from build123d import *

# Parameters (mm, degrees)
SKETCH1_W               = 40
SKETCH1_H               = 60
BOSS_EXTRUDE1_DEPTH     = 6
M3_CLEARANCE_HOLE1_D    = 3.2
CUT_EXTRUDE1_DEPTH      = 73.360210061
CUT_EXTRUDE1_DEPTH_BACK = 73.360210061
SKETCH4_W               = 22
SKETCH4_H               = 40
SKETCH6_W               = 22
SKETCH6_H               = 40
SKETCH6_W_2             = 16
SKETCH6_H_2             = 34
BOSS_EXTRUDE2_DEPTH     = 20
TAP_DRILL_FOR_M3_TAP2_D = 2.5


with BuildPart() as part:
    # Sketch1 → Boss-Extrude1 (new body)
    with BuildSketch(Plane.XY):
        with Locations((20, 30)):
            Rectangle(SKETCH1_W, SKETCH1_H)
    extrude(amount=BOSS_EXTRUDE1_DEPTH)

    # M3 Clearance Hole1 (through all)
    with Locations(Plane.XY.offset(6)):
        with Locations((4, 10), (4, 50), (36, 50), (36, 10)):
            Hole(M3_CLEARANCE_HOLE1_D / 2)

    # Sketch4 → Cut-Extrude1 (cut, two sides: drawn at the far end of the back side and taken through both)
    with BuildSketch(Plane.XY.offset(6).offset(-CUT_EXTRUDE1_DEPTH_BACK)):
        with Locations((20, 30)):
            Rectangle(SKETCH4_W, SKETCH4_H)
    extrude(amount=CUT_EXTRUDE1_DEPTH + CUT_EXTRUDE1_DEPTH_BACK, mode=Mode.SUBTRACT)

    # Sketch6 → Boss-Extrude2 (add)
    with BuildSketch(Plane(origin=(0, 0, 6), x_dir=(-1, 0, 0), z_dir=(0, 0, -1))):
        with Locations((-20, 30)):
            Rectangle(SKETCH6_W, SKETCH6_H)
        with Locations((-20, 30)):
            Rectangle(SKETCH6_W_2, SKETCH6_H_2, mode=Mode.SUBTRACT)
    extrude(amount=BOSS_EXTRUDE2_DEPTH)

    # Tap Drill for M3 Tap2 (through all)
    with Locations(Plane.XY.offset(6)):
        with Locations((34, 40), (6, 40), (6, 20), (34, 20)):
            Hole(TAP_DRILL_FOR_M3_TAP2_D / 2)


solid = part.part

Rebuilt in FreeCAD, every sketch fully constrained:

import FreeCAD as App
import Part
import Sketcher

V = App.Vector
Q = App.Units.Quantity


def add_polygon(sketch, points):
    """Adds a closed chain of lines whose ends are joined by coincident constraints."""
    first, n = sketch.GeometryCount, len(points)
    for a, b in zip(points, points[1:] + points[:1]):
        sketch.addGeometry(Part.LineSegment(App.Vector(*a, 0), App.Vector(*b, 0)), False)
    for i in range(n):
        sketch.addConstraint(Sketcher.Constraint("Coincident", first + i, 2, first + (i + 1) % n, 1))

doc = App.newDocument("Part")
body = doc.addObject("PartDesign::Body", "Body")

# Sketch on XY plane
sketch1 = body.newObject("Sketcher::SketchObject", "Sketch")
sketch1.AttachmentSupport = (doc.getObject("XY_Plane"), [""])
sketch1.MapMode = "FlatFace"
add_polygon(sketch1, [(0, 60), (0, 0), (40, 0), (40, 60)])  # lines 0-3
sketch1.addConstraint([
    Sketcher.Constraint("Vertical", 0),
    Sketcher.Constraint("Horizontal", 1),
    Sketcher.Constraint("Vertical", 2),
    Sketcher.Constraint("Horizontal", 3),
    Sketcher.Constraint("Coincident", 0, 2, -1, 1),
    Sketcher.Constraint("DistanceX", 1, 1, 1, 2, Q("40 mm")),
    Sketcher.Constraint("DistanceY", 0, 2, 0, 1, Q("60 mm")),
])
pad1 = body.newObject("PartDesign::Pad", "Pad")
pad1.Profile = sketch1
pad1.Length = 6

# Sketch on XY plane
sketch2 = body.newObject("Sketcher::SketchObject", "Sketch001")
sketch2.AttachmentSupport = (doc.getObject("XY_Plane"), [""])
sketch2.MapMode = "FlatFace"
sketch2.AttachmentOffset = App.Placement(V(0, 0, 6), App.Rotation())
sketch2.addGeometry([
    Part.Circle(V(4, 10, 0), V(0, 0, 1), 1.6),
    Part.Circle(V(4, 50, 0), V(0, 0, 1), 1.6),
    Part.Circle(V(36, 50, 0), V(0, 0, 1), 1.6),
    Part.Circle(V(36, 10, 0), V(0, 0, 1), 1.6),
], False)
sketch2.addConstraint([
    Sketcher.Constraint("Equal", 0, 1),
    Sketcher.Constraint("Equal", 1, 2),
    Sketcher.Constraint("Equal", 2, 3),
    Sketcher.Constraint("Horizontal", 1, 3, 2, 3),
    Sketcher.Constraint("Horizontal", 0, 3, 3, 3),
    Sketcher.Constraint("Vertical", 0, 3, 1, 3),
    Sketcher.Constraint("Vertical", 2, 3, 3, 3),
    Sketcher.Constraint("Diameter", 0, Q("3.2 mm")),
    Sketcher.Constraint("DistanceX", -1, 1, 0, 3, Q("4 mm")),
    Sketcher.Constraint("DistanceY", -1, 1, 0, 3, Q("10 mm")),
    Sketcher.Constraint("DistanceY", -1, 1, 1, 3, Q("50 mm")),
    Sketcher.Constraint("DistanceX", -1, 1, 2, 3, Q("36 mm")),
])
doc.recompute()
hole = body.newObject("PartDesign::Hole", "Hole")
hole.Profile = sketch2
hole.ThreadType = "None"
hole.Diameter = 3.2
hole.DepthType = "ThroughAll"

# Sketch on XY plane
sketch3 = body.newObject("Sketcher::SketchObject", "Sketch002")
sketch3.AttachmentSupport = (doc.getObject("XY_Plane"), [""])
sketch3.MapMode = "FlatFace"
sketch3.AttachmentOffset = App.Placement(V(0, 0, 6), App.Rotation())
add_polygon(sketch3, [(9, 50), (9, 10), (31, 10), (31, 50)])  # lines 0-3
sketch3.addConstraint([
    Sketcher.Constraint("Vertical", 0),
    Sketcher.Constraint("Horizontal", 1),
    Sketcher.Constraint("Vertical", 2),
    Sketcher.Constraint("Horizontal", 3),
    Sketcher.Constraint("DistanceX", 1, 1, 1, 2, Q("22 mm")),
    Sketcher.Constraint("DistanceY", 0, 2, 0, 1, Q("40 mm")),
    Sketcher.Constraint("DistanceX", -1, 1, 0, 2, Q("9 mm")),
    Sketcher.Constraint("DistanceY", -1, 1, 0, 2, Q("10 mm")),
])
pocket1 = body.newObject("PartDesign::Pocket", "Pocket")
pocket1.Profile = sketch3
pocket1.Type = "ThroughAll"
pocket1.Midplane = True

# Sketch on XY plane
sketch4 = body.newObject("Sketcher::SketchObject", "Sketch003")
sketch4.AttachmentSupport = (doc.getObject("XY_Plane"), [""])
sketch4.MapMode = "FlatFace"
sketch4.AttachmentOffset = App.Placement(V(0, 0, 6), App.Rotation())
add_polygon(sketch4, [(31, 50), (31, 10), (9, 10), (9, 50)])  # lines 0-3
add_polygon(sketch4, [(12, 13), (28, 13), (28, 47), (12, 47)])  # lines 4-7
sketch4.addConstraint([
    Sketcher.Constraint("Vertical", 0),
    Sketcher.Constraint("Horizontal", 1),
    Sketcher.Constraint("Vertical", 2),
    Sketcher.Constraint("Horizontal", 3),
    Sketcher.Constraint("Horizontal", 4),
    Sketcher.Constraint("Vertical", 5),
    Sketcher.Constraint("Horizontal", 6),
    Sketcher.Constraint("Vertical", 7),
    Sketcher.Constraint("DistanceX", 1, 2, 1, 1, Q("22 mm")),
    Sketcher.Constraint("DistanceX", 4, 1, 4, 2, Q("16 mm")),
    Sketcher.Constraint("DistanceY", 0, 2, 0, 1, Q("40 mm")),
    Sketcher.Constraint("DistanceY", 5, 1, 5, 2, Q("34 mm")),
    Sketcher.Constraint("DistanceX", -1, 1, 0, 2, Q("31 mm")),
    Sketcher.Constraint("DistanceY", -1, 1, 0, 2, Q("10 mm")),
    Sketcher.Constraint("DistanceX", -1, 1, 4, 2, Q("28 mm")),
    Sketcher.Constraint("DistanceY", -1, 1, 4, 2, Q("13 mm")),
])
pad2 = body.newObject("PartDesign::Pad", "Pad001")
pad2.Profile = sketch4
pad2.Length = 20
pad2.Reversed = True

# Sketch on XY plane
sketch5 = body.newObject("Sketcher::SketchObject", "Sketch004")
sketch5.AttachmentSupport = (doc.getObject("XY_Plane"), [""])
sketch5.MapMode = "FlatFace"
sketch5.AttachmentOffset = App.Placement(V(0, 0, 6), App.Rotation())
sketch5.addGeometry([
    Part.Circle(V(34, 40, 0), V(0, 0, 1), 1.25),
    Part.Circle(V(6, 40, 0), V(0, 0, 1), 1.25),
    Part.Circle(V(6, 20, 0), V(0, 0, 1), 1.25),
    Part.Circle(V(34, 20, 0), V(0, 0, 1), 1.25),
], False)
sketch5.addConstraint([
    Sketcher.Constraint("Equal", 0, 1),
    Sketcher.Constraint("Equal", 1, 2),
    Sketcher.Constraint("Equal", 2, 3),
    Sketcher.Constraint("Horizontal", 0, 3, 1, 3),
    Sketcher.Constraint("Horizontal", 2, 3, 3, 3),
    Sketcher.Constraint("Vertical", 1, 3, 2, 3),
    Sketcher.Constraint("Vertical", 0, 3, 3, 3),
    Sketcher.Constraint("Diameter", 0, Q("2.5 mm")),
    Sketcher.Constraint("DistanceX", -1, 1, 0, 3, Q("34 mm")),
    Sketcher.Constraint("DistanceY", -1, 1, 0, 3, Q("40 mm")),
    Sketcher.Constraint("DistanceX", -1, 1, 1, 3, Q("6 mm")),
    Sketcher.Constraint("DistanceY", -1, 1, 2, 3, Q("20 mm")),
])
doc.recompute()
hole2 = body.newObject("PartDesign::Hole", "Hole001")
hole2.Profile = sketch5
hole2.ThreadType = "None"
hole2.Diameter = 2.5
hole2.DepthType = "ThroughAll"

doc.recompute()
